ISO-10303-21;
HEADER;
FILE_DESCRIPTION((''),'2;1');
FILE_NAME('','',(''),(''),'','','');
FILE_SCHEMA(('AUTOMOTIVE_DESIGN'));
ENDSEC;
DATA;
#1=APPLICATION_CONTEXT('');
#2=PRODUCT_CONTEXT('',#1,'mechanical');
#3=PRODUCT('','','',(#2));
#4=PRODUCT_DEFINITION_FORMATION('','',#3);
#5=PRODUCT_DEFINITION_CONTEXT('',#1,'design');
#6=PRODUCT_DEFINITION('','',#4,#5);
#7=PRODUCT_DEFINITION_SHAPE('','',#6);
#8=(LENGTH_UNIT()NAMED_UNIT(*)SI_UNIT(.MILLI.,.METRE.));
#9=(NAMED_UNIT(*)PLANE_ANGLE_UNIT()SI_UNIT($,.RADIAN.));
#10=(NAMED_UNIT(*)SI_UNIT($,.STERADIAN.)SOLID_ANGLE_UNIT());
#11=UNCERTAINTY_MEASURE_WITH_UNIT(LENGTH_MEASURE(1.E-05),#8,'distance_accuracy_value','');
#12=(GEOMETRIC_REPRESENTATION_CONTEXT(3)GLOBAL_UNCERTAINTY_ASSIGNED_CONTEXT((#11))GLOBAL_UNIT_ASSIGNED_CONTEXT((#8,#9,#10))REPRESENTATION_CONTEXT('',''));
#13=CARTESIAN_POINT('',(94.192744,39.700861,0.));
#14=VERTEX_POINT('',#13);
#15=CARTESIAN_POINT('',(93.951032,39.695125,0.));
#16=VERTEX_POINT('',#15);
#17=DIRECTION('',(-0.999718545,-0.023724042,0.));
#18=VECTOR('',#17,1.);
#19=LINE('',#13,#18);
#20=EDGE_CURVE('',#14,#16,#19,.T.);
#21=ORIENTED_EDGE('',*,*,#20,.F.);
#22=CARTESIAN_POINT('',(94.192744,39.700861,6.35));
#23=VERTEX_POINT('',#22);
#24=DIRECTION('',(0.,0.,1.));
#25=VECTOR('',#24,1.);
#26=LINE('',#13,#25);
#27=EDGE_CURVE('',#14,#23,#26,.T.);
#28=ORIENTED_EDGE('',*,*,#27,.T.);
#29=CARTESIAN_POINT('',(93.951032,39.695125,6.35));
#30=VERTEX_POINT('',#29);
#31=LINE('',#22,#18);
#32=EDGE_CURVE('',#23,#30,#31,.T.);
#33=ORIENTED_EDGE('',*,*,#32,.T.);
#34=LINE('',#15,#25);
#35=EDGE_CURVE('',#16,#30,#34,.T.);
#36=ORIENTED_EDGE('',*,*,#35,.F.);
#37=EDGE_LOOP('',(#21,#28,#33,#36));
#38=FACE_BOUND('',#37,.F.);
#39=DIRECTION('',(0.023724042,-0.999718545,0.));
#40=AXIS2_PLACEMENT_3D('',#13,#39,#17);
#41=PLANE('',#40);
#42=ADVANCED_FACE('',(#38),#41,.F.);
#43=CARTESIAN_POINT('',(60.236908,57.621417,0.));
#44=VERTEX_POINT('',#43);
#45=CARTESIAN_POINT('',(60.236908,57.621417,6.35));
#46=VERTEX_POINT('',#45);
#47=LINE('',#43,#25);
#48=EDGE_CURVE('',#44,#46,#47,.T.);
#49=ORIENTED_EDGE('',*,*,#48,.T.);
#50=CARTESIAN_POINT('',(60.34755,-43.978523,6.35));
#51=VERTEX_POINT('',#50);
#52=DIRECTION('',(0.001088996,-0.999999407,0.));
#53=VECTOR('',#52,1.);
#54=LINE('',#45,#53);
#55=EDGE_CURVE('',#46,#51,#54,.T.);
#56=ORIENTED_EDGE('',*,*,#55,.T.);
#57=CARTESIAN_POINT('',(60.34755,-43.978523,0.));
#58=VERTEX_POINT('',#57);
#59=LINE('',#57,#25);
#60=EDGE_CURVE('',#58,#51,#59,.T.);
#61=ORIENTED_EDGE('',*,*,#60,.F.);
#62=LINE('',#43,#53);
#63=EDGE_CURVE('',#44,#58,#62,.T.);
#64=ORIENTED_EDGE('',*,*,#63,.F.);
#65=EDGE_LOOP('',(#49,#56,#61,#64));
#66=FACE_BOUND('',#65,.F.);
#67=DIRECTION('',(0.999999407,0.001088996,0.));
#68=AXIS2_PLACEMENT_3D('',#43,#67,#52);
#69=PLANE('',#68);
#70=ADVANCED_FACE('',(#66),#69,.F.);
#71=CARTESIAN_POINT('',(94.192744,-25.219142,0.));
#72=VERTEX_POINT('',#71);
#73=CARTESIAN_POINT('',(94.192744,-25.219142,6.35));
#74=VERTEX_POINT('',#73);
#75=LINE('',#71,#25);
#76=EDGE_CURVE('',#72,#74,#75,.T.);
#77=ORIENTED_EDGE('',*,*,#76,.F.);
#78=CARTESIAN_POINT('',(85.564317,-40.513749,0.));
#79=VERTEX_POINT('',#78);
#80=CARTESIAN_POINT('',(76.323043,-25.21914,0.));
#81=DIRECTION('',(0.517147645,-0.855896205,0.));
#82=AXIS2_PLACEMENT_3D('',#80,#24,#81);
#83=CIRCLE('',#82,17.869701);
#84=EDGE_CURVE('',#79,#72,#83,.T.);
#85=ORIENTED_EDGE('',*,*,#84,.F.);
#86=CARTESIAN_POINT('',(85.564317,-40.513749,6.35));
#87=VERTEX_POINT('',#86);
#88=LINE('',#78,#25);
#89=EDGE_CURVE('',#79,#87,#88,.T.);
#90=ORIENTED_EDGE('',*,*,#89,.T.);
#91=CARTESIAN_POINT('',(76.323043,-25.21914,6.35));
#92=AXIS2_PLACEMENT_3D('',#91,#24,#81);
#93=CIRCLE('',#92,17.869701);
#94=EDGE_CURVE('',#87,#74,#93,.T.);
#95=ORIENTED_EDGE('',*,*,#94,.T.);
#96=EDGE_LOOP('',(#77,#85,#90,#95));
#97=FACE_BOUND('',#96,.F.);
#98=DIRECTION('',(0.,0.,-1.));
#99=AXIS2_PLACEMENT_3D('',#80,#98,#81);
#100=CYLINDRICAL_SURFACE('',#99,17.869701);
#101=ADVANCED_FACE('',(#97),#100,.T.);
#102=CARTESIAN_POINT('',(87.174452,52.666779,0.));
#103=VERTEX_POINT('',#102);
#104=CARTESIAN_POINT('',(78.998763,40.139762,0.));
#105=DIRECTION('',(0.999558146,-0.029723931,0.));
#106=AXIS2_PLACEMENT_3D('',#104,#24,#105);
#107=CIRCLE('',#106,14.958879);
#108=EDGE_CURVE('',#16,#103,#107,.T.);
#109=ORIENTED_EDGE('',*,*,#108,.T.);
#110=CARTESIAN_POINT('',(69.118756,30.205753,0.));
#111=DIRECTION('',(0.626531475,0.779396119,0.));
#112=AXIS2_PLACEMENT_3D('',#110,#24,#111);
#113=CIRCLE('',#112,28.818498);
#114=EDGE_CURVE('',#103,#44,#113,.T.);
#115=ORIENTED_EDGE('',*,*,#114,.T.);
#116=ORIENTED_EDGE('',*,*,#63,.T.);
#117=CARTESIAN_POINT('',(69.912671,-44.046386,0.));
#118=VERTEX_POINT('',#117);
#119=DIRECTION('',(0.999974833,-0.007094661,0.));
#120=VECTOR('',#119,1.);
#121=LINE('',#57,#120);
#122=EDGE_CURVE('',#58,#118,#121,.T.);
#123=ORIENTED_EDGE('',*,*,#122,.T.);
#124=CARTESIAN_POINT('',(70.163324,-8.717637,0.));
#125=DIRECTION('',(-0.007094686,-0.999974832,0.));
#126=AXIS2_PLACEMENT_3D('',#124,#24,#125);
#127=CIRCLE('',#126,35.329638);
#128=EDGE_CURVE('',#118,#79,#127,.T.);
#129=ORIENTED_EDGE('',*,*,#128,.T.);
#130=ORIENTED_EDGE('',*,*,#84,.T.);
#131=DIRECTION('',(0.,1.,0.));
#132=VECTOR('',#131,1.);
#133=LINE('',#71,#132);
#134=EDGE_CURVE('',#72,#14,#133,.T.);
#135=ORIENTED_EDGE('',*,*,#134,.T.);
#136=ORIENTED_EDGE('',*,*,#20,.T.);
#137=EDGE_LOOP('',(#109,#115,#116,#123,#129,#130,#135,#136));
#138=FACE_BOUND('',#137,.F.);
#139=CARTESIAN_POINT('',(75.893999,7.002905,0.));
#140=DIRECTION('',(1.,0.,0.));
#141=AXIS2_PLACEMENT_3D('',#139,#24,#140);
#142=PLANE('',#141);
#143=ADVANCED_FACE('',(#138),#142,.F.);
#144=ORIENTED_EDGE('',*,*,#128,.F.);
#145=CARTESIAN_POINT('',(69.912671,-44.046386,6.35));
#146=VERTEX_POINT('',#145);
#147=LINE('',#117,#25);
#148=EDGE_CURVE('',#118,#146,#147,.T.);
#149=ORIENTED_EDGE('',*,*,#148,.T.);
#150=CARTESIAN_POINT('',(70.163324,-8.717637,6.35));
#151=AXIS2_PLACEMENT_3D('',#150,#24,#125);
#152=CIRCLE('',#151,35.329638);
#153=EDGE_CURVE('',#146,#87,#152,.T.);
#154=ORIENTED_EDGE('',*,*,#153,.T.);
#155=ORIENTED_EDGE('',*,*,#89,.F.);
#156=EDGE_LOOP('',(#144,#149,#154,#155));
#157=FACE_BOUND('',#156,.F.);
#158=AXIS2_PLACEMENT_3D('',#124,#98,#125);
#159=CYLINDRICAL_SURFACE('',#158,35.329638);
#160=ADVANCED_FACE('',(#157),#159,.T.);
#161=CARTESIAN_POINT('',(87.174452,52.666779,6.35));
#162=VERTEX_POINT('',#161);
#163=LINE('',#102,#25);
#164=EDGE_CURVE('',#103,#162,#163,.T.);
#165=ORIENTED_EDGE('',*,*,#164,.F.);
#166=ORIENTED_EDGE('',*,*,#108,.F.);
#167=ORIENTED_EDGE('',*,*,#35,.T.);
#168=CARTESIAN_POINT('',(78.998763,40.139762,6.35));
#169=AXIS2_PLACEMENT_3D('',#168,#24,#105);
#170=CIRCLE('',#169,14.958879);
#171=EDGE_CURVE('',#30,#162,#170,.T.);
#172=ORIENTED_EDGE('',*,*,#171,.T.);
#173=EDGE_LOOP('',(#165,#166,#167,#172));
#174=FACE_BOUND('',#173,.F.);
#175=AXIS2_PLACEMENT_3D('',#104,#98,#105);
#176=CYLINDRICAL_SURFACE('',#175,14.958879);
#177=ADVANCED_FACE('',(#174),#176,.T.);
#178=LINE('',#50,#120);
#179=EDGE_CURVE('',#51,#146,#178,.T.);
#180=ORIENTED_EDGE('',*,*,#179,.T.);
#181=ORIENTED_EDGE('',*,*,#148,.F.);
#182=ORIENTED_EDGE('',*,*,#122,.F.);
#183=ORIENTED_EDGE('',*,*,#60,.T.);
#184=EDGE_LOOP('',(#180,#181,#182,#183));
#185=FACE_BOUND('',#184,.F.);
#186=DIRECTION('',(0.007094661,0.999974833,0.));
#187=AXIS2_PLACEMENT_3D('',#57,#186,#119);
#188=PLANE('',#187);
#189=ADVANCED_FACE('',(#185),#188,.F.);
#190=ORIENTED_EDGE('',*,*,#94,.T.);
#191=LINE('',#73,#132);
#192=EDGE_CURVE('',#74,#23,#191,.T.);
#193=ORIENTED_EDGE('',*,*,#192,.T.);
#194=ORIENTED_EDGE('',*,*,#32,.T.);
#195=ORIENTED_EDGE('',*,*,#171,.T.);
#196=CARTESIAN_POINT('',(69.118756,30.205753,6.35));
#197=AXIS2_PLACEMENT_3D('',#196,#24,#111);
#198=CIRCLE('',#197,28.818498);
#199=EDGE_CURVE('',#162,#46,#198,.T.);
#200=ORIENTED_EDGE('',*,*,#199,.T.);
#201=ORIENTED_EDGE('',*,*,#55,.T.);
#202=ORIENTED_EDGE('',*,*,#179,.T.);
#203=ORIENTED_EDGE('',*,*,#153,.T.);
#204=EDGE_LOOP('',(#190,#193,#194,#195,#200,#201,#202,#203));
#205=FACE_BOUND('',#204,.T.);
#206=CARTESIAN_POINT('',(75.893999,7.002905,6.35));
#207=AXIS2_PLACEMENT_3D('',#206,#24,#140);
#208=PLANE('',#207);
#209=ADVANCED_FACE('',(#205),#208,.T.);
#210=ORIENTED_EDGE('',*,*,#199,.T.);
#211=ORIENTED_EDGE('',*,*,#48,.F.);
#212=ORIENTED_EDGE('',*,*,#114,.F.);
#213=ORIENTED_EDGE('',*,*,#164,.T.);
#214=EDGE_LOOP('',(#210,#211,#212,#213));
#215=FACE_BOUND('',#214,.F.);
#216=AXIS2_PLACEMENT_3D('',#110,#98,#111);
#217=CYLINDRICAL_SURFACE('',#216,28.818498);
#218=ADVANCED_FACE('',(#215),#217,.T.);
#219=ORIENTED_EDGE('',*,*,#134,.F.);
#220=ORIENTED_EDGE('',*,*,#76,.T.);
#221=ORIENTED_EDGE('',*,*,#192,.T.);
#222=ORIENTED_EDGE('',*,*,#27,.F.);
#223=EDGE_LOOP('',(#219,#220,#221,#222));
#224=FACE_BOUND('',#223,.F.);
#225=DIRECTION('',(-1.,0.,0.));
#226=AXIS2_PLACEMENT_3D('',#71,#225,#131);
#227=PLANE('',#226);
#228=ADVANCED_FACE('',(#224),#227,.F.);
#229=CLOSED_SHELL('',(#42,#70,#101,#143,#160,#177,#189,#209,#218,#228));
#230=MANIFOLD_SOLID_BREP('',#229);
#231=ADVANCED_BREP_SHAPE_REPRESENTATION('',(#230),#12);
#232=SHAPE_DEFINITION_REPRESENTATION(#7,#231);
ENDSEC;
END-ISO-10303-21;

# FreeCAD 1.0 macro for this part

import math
import FreeCAD as App
import Part
import Sketcher

V = App.Vector
Q = App.Units.Quantity

doc = App.newDocument("Part")
body = doc.addObject("PartDesign::Body", "Body")

sketch1 = body.newObject("Sketcher::SketchObject", "Sketch")
sketch1.AttachmentSupport = (doc.getObject("XY_Plane"), [""])
sketch1.MapMode = "FlatFace"
sketch1.addGeometry([
    Part.ArcOfCircle(Part.Circle(V(78.998763, 40.139762, 0), V(0, 0, 1), 14.958879), math.radians(-1.703307), math.radians(56.869744)),
    Part.ArcOfCircle(Part.Circle(V(69.118756, 30.205753, 0), V(0, 0, 1), 28.818498), math.radians(51.205318), math.radians(107.95076)),
    Part.LineSegment(V(60.236908, 57.621417, 0), V(60.34755, -43.978523, 0)),
    Part.LineSegment(V(60.34755, -43.978523, 0), V(69.912671, -44.046386, 0)),
    Part.ArcOfCircle(Part.Circle(V(70.163324, -8.717637, 0), V(0, 0, 1), 35.329638), math.radians(-90.406499), math.radians(-64.155975)),
    Part.ArcOfCircle(Part.Circle(V(76.323043, -25.21914, 0), V(0, 0, 1), 17.869701), math.radians(-58.858885), math.radians(-0.000006)),
    Part.LineSegment(V(94.192744, -25.219142, 0), V(94.192744, 39.700861, 0)),
    Part.LineSegment(V(94.192744, 39.700861, 0), V(93.951032, 39.695125, 0)),
], False)
sketch1.addConstraint([
    Sketcher.Constraint("Coincident", 0, 2, 1, 1),
    Sketcher.Constraint("Coincident", 1, 2, 2, 1),
    Sketcher.Constraint("Coincident", 2, 2, 3, 1),
    Sketcher.Constraint("Tangent", 3, 2, 4, 1),
    Sketcher.Constraint("Coincident", 4, 2, 5, 1),
    Sketcher.Constraint("Tangent", 5, 2, 6, 1),
    Sketcher.Constraint("Coincident", 6, 2, 7, 1),
    Sketcher.Constraint("Coincident", 7, 2, 0, 1),
    Sketcher.Constraint("Vertical", 6),
    Sketcher.Constraint("Distance", 2, Q("4 in")),
    Sketcher.Constraint("Radius", 1, 28.818498),
    Sketcher.Constraint("Radius", 5, 17.869701),
    Sketcher.Constraint("Radius", 0, 14.958879),
    Sketcher.Constraint("Radius", 4, 35.329638),
    Sketcher.Constraint("DistanceY", -1, 1, 7, 2, Q("1.5628002 in")),
    Sketcher.Constraint("DistanceY", 4, 3, 0, 3, 48.857399),
    Sketcher.Constraint("DistanceY", 5, 3, 0, 3, 65.358902),
    Sketcher.Constraint("DistanceY", 6, 2, 0, 3, 0.438901),
    Sketcher.Constraint("Distance", 3, 9.565362),
    Sketcher.Constraint("Distance", 7, 0.24178),
    Sketcher.Constraint("DistanceY", -1, 1, 0, 3, 40.139762),
    Sketcher.Constraint("DistanceY", -1, 1, 0, 2, 52.666779),
    Sketcher.Constraint("DistanceX", -1, 1, 2, 2, 60.34755),
    Sketcher.Constraint("DistanceY", 4, 2, -1, 1, 40.513749),
    Sketcher.Constraint("DistanceX", -1, 1, 7, 2, 93.951032),
    Sketcher.Constraint("DistanceY", 1, 3, 0, 3, 9.934008),
])
pad1 = body.newObject("PartDesign::Pad", "Pad")
pad1.Profile = sketch1
pad1.Length = Q("0.25 in")

doc.recompute()
